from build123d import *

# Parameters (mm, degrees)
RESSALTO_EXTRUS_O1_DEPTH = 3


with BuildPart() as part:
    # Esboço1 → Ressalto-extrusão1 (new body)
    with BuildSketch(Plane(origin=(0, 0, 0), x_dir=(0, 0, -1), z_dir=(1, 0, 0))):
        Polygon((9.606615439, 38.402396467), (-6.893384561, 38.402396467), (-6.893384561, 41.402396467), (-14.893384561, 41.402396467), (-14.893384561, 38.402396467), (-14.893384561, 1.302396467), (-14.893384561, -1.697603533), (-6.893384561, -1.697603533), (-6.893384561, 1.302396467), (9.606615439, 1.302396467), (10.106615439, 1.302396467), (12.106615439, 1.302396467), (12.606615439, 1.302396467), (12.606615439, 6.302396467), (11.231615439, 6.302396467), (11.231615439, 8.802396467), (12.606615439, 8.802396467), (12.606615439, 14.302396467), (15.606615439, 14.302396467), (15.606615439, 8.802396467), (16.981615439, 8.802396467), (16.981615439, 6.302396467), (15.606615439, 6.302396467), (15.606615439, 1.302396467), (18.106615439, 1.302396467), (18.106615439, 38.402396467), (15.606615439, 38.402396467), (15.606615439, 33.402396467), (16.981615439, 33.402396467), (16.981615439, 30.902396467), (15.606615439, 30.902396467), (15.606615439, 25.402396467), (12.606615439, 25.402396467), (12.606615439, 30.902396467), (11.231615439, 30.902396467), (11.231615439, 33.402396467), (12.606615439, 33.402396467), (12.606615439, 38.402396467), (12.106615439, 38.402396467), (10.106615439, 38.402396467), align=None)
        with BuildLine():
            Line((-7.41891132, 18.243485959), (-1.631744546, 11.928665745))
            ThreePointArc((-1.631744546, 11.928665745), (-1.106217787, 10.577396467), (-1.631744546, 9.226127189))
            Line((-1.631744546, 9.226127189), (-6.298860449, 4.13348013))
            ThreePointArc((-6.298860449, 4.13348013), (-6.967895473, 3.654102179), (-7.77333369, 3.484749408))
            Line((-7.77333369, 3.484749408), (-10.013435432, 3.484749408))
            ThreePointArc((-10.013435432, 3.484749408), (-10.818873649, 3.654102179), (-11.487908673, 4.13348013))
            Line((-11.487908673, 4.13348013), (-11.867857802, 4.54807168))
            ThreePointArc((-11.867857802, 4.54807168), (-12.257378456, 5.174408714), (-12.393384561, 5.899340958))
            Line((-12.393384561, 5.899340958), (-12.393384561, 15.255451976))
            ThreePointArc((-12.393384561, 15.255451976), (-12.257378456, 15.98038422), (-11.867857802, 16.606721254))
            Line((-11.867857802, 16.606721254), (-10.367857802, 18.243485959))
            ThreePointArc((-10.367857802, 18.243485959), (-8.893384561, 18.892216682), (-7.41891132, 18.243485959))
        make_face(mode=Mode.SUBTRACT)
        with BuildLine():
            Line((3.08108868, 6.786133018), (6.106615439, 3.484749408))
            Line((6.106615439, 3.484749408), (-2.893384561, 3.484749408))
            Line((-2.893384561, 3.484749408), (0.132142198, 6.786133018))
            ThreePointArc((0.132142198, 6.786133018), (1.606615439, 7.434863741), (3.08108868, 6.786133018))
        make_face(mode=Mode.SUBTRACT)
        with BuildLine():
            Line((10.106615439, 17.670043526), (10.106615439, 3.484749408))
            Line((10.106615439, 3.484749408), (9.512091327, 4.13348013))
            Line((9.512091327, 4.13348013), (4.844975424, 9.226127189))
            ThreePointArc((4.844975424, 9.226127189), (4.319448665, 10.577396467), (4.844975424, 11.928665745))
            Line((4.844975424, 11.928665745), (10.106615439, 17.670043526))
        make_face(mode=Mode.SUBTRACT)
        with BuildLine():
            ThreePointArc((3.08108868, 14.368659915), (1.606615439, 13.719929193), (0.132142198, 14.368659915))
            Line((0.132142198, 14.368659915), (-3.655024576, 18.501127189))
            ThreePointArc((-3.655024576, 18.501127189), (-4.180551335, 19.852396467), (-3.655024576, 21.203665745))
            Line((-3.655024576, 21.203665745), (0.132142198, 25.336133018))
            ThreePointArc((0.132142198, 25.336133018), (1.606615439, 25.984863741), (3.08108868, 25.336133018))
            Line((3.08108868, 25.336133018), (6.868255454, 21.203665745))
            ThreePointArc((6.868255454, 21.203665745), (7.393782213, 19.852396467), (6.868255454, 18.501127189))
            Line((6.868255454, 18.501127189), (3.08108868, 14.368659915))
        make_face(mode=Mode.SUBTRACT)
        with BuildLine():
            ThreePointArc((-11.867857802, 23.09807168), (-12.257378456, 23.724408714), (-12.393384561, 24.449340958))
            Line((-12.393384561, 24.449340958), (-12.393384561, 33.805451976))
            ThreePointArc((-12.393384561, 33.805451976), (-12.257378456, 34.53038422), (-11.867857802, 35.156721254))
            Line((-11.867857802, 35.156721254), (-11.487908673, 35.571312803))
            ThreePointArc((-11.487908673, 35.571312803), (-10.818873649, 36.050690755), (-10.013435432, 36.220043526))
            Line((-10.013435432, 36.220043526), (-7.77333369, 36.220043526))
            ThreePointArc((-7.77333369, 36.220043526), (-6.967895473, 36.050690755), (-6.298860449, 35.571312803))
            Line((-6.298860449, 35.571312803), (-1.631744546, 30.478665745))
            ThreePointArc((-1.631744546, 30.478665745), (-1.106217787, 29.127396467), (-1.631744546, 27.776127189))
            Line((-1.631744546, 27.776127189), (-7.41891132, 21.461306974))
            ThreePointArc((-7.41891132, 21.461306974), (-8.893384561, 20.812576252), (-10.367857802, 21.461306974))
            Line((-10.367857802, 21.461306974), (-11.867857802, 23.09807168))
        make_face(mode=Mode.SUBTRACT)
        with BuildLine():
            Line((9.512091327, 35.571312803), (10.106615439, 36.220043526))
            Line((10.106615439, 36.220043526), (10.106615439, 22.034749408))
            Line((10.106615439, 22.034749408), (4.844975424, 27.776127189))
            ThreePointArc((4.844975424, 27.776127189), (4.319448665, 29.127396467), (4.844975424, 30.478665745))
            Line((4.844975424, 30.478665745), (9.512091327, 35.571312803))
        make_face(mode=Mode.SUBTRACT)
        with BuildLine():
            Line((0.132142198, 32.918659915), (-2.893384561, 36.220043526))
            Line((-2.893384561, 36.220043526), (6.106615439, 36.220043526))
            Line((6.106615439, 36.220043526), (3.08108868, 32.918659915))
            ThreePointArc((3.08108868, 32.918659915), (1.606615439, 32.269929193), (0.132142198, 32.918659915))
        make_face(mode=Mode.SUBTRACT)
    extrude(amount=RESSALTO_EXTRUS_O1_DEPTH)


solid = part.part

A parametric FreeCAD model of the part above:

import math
import FreeCAD as App
import Part
import Sketcher

V = App.Vector
Q = App.Units.Quantity


def add_polygon(sketch, points):
    """Adds a closed chain of lines whose ends are joined by coincident constraints."""
    first, n = sketch.GeometryCount, len(points)
    for a, b in zip(points, points[1:] + points[:1]):
        sketch.addGeometry(Part.LineSegment(App.Vector(*a, 0), App.Vector(*b, 0)), False)
    for i in range(n):
        sketch.addConstraint(Sketcher.Constraint("Coincident", first + i, 2, first + (i + 1) % n, 1))

doc = App.newDocument("Part")
params = doc.addObject("Spreadsheet::Sheet", "Params")
for row, (alias, value) in enumerate([
    ("sketch1_radius", "2 mm"),
    ("sketch1_width", "3 mm"),
    ("sketch1_width2", "5 mm"),
    ("sketch1_height", "8 mm"),
    ("sketch1_height2", "9 mm"),
    ("pad1_length", "3 mm"),
], start=1):
    params.set(f"A{row}", alias)
    params.set(f"B{row}", "=" + value)
    params.setAlias(f"B{row}", alias)

body = doc.addObject("PartDesign::Body", "Body")

sketch1 = body.newObject("Sketcher::SketchObject", "Sketch")
sketch1.AttachmentSupport = (doc.getObject("YZ_Plane"), [""])
sketch1.MapMode = "FlatFace"
add_polygon(sketch1, [(38.4, 6.9), (41.4, 6.9), (41.4, 14.9), (-1.7, 14.9), (-1.7, 6.9), (1.3, 6.9), (1.3, -12.6), (6.3, -12.6), (6.3, -11.2), (8.8, -11.2), (8.8, -12.6), (14.3, -12.6), (14.3, -15.6), (8.8, -15.6), (8.8, -17), (6.3, -17), (6.3, -15.6), (1.3, -15.6), (1.3, -18.1), (38.4, -18.1), (38.4, -15.6), (33.4, -15.6), (33.4, -17), (30.9, -17), (30.9, -15.6), (25.4, -15.6), (25.4, -12.6), (30.9, -12.6), (30.9, -11.2), (33.4, -11.2), (33.4, -12.6), (38.4, -12.6)])
sketch1.addGeometry(Part.ArcOfCircle(Part.Circle(V(16.9, 8.9, 0), V(0, 0, 1), 2), math.radians(-47), math.radians(47)), False)
sketch1.addGeometry(Part.LineSegment(V(18.2, 7.4, 0), V(11.9, 1.6, 0)), False)
sketch1.addGeometry(Part.ArcOfCircle(Part.Circle(V(10.6, 3.1, 0), V(0, 0, 1), 2), math.radians(-133), math.radians(-47)), False)
sketch1.addGeometry(Part.LineSegment(V(9.2, 1.6, 0), V(4.1, 6.3, 0)), False)
sketch1.addGeometry(Part.ArcOfCircle(Part.Circle(V(5.5, 7.8, 0), V(0, 0, 1), 2), math.radians(-180), math.radians(-133)), False)
sketch1.addGeometry(Part.LineSegment(V(3.5, 7.8, 0), V(3.5, 10, 0)), False)
sketch1.addGeometry(Part.ArcOfCircle(Part.Circle(V(5.5, 10, 0), V(0, 0, 1), 2), math.radians(133), math.radians(180)), False)
sketch1.addGeometry(Part.LineSegment(V(4.1, 11.5, 0), V(4.5, 11.9, 0)), False)
sketch1.addGeometry(Part.ArcOfCircle(Part.Circle(V(5.9, 10.4, 0), V(0, 0, 1), 2), math.radians(90), math.radians(133)), False)
sketch1.addGeometry(Part.LineSegment(V(5.9, 12.4, 0), V(15.3, 12.4, 0)), False)
sketch1.addGeometry(Part.ArcOfCircle(Part.Circle(V(15.3, 10.4, 0), V(0, 0, 1), 2), math.radians(47), math.radians(90)), False)
sketch1.addGeometry(Part.LineSegment(V(16.6, 11.9, 0), V(18.2, 10.4, 0)), False)
sketch1.addGeometry(Part.ArcOfCircle(Part.Circle(V(5.4, -1.6, 0), V(0, 0, 1), 2), math.radians(-47), math.radians(47)), False)
sketch1.addGeometry(Part.LineSegment(V(6.8, -3.1, 0), V(3.5, -6.1, 0)), False)
sketch1.addGeometry(Part.LineSegment(V(3.5, -6.1, 0), V(3.5, 2.9, 0)), False)
sketch1.addGeometry(Part.LineSegment(V(3.5, 2.9, 0), V(6.8, -0.1, 0)), False)
sketch1.addGeometry(Part.LineSegment(V(11.9, -4.8, 0), V(17.7, -10.1, 0)), False)
sketch1.addGeometry(Part.LineSegment(V(17.7, -10.1, 0), V(3.5, -10.1, 0)), False)
sketch1.addGeometry(Part.LineSegment(V(3.5, -10.1, 0), V(4.1, -9.5, 0)), False)
sketch1.addGeometry(Part.LineSegment(V(4.1, -9.5, 0), V(9.2, -4.8, 0)), False)
sketch1.addGeometry(Part.ArcOfCircle(Part.Circle(V(10.6, -6.3, 0), V(0, 0, 1), 2), math.radians(47), math.radians(133)), False)
sketch1.addGeometry(Part.LineSegment(V(21.5, 10.4, 0), V(23.1, 11.9, 0)), False)
sketch1.addGeometry(Part.ArcOfCircle(Part.Circle(V(24.4, 10.4, 0), V(0, 0, 1), 2), math.radians(90), math.radians(133)), False)
sketch1.addGeometry(Part.LineSegment(V(24.4, 12.4, 0), V(33.8, 12.4, 0)), False)
sketch1.addGeometry(Part.ArcOfCircle(Part.Circle(V(33.8, 10.4, 0), V(0, 0, 1), 2), math.radians(47), math.radians(90)), False)
sketch1.addGeometry(Part.LineSegment(V(35.2, 11.9, 0), V(35.6, 11.5, 0)), False)
sketch1.addGeometry(Part.ArcOfCircle(Part.Circle(V(34.2, 10, 0), V(0, 0, 1), 2), math.radians(0), math.radians(47)), False)
sketch1.addGeometry(Part.LineSegment(V(36.2, 10, 0), V(36.2, 7.8, 0)), False)
sketch1.addGeometry(Part.ArcOfCircle(Part.Circle(V(34.2, 7.8, 0), V(0, 0, 1), 2), math.radians(-47), math.radians(0)), False)
sketch1.addGeometry(Part.LineSegment(V(35.6, 6.3, 0), V(30.5, 1.6, 0)), False)
sketch1.addGeometry(Part.ArcOfCircle(Part.Circle(V(29.1, 3.1, 0), V(0, 0, 1), 2), math.radians(-133), math.radians(-47)), False)
sketch1.addGeometry(Part.LineSegment(V(27.8, 1.6, 0), V(21.5, 7.4, 0)), False)
sketch1.addGeometry(Part.ArcOfCircle(Part.Circle(V(22.8, 8.9, 0), V(0, 0, 1), 2), math.radians(133), math.radians(227)), False)
sketch1.addGeometry(Part.LineSegment(V(18.5, -6.9, 0), V(14.4, -3.1, 0)), False)
sketch1.addGeometry(Part.ArcOfCircle(Part.Circle(V(15.7, -1.6, 0), V(0, 0, 1), 2), math.radians(133), math.radians(227)), False)
sketch1.addGeometry(Part.LineSegment(V(14.4, -0.1, 0), V(18.5, 3.7, 0)), False)
sketch1.addGeometry(Part.ArcOfCircle(Part.Circle(V(19.9, 2.2, 0), V(0, 0, 1), 2), math.radians(47), math.radians(133)), False)
sketch1.addGeometry(Part.LineSegment(V(21.2, 3.7, 0), V(25.3, -0.1, 0)), False)
sketch1.addGeometry(Part.ArcOfCircle(Part.Circle(V(24, -1.6, 0), V(0, 0, 1), 2), math.radians(-47), math.radians(47)), False)
sketch1.addGeometry(Part.LineSegment(V(25.3, -3.1, 0), V(21.2, -6.9, 0)), False)
sketch1.addGeometry(Part.ArcOfCircle(Part.Circle(V(19.9, -5.4, 0), V(0, 0, 1), 2), math.radians(-133), math.radians(-47)), False)
sketch1.addGeometry(Part.ArcOfCircle(Part.Circle(V(34.3, -1.6, 0), V(0, 0, 1), 2), math.radians(133), math.radians(227)), False)
sketch1.addGeometry(Part.LineSegment(V(32.9, -0.1, 0), V(36.2, 2.9, 0)), False)
sketch1.addGeometry(Part.LineSegment(V(36.2, 2.9, 0), V(36.2, -6.1, 0)), False)
sketch1.addGeometry(Part.LineSegment(V(36.2, -6.1, 0), V(32.9, -3.1, 0)), False)
sketch1.addGeometry(Part.LineSegment(V(30.5, -4.8, 0), V(35.6, -9.5, 0)), False)
sketch1.addGeometry(Part.LineSegment(V(35.6, -9.5, 0), V(36.2, -10.1, 0)), False)
sketch1.addGeometry(Part.LineSegment(V(36.2, -10.1, 0), V(22, -10.1, 0)), False)
sketch1.addGeometry(Part.LineSegment(V(22, -10.1, 0), V(27.8, -4.8, 0)), False)
sketch1.addGeometry(Part.ArcOfCircle(Part.Circle(V(29.1, -6.3, 0), V(0, 0, 1), 2), math.radians(47), math.radians(133)), False)
sketch1.addConstraint([
    Sketcher.Constraint("Tangent", 32, 1, 33, 1),
    Sketcher.Constraint("Tangent", 33, 2, 34, 2),
    Sketcher.Constraint("Tangent", 34, 1, 35, 1),
    Sketcher.Constraint("Tangent", 35, 2, 36, 2),
    Sketcher.Constraint("Tangent", 36, 1, 37, 1),
    Sketcher.Constraint("Tangent", 37, 2, 38, 2),
    Sketcher.Constraint("Tangent", 38, 1, 39, 1),
    Sketcher.Constraint("Tangent", 39, 2, 40, 2),
    Sketcher.Constraint("Tangent", 40, 1, 41, 1),
    Sketcher.Constraint("Tangent", 41, 2, 42, 2),
    Sketcher.Constraint("Tangent", 42, 1, 43, 1),
    Sketcher.Constraint("Tangent", 43, 2, 32, 2),
    Sketcher.Constraint("Tangent", 44, 1, 45, 1),
    Sketcher.Constraint("Coincident", 45, 2, 46, 1),
    Sketcher.Constraint("Coincident", 46, 2, 47, 1),
    Sketcher.Constraint("Tangent", 47, 2, 44, 2),
    Sketcher.Constraint("Coincident", 48, 2, 49, 1),
    Sketcher.Constraint("Coincident", 49, 2, 50, 1),
    Sketcher.Constraint("Coincident", 50, 2, 51, 1),
    Sketcher.Constraint("Tangent", 51, 2, 52, 2),
    Sketcher.Constraint("Tangent", 52, 1, 48, 1),
    Sketcher.Constraint("Tangent", 53, 2, 54, 2),
    Sketcher.Constraint("Tangent", 54, 1, 55, 1),
    Sketcher.Constraint("Tangent", 55, 2, 56, 2),
    Sketcher.Constraint("Tangent", 56, 1, 57, 1),
    Sketcher.Constraint("Tangent", 57, 2, 58, 2),
    Sketcher.Constraint("Tangent", 58, 1, 59, 1),
    Sketcher.Constraint("Tangent", 59, 2, 60, 2),
    Sketcher.Constraint("Tangent", 60, 1, 61, 1),
    Sketcher.Constraint("Tangent", 61, 2, 62, 2),
    Sketcher.Constraint("Tangent", 62, 1, 63, 1),
    Sketcher.Constraint("Tangent", 63, 2, 64, 2),
    Sketcher.Constraint("Tangent", 64, 1, 53, 1),
    Sketcher.Constraint("Tangent", 65, 2, 66, 2),
    Sketcher.Constraint("Tangent", 66, 1, 67, 1),
    Sketcher.Constraint("Tangent", 67, 2, 68, 2),
    Sketcher.Constraint("Tangent", 68, 1, 69, 1),
    Sketcher.Constraint("Tangent", 69, 2, 70, 2),
    Sketcher.Constraint("Tangent", 70, 1, 71, 1),
    Sketcher.Constraint("Tangent", 71, 2, 72, 2),
    Sketcher.Constraint("Tangent", 72, 1, 65, 1),
    Sketcher.Constraint("Tangent", 73, 1, 74, 1),
    Sketcher.Constraint("Coincident", 74, 2, 75, 1),
    Sketcher.Constraint("Coincident", 75, 2, 76, 1),
    Sketcher.Constraint("Tangent", 76, 2, 73, 2),
    Sketcher.Constraint("Coincident", 77, 2, 78, 1),
    Sketcher.Constraint("Coincident", 78, 2, 79, 1),
    Sketcher.Constraint("Coincident", 79, 2, 80, 1),
    Sketcher.Constraint("Tangent", 80, 2, 81, 2),
    Sketcher.Constraint("Tangent", 81, 1, 77, 1),
    Sketcher.Constraint("Horizontal", 0),
    Sketcher.Constraint("Vertical", 1),
    Sketcher.Constraint("Horizontal", 2),
    Sketcher.Constraint("Vertical", 3),
    Sketcher.Constraint("Horizontal", 4),
    Sketcher.Constraint("Vertical", 5),
    Sketcher.Constraint("Horizontal", 6),
    Sketcher.Constraint("Vertical", 7),
    Sketcher.Constraint("Horizontal", 8),
    Sketcher.Constraint("Vertical", 9),
    Sketcher.Constraint("Horizontal", 10),
    Sketcher.Constraint("Vertical", 11),
    Sketcher.Constraint("Horizontal", 12),
    Sketcher.Constraint("Vertical", 13),
    Sketcher.Constraint("Horizontal", 14),
    Sketcher.Constraint("Vertical", 15),
    Sketcher.Constraint("Horizontal", 16),
    Sketcher.Constraint("Vertical", 17),
    Sketcher.Constraint("Horizontal", 18),
    Sketcher.Constraint("Vertical", 19),
    Sketcher.Constraint("Horizontal", 20),
    Sketcher.Constraint("Vertical", 21),
    Sketcher.Constraint("Horizontal", 22),
    Sketcher.Constraint("Vertical", 23),
    Sketcher.Constraint("Horizontal", 24),
    Sketcher.Constraint("Vertical", 25),
    Sketcher.Constraint("Horizontal", 26),
    Sketcher.Constraint("Vertical", 27),
    Sketcher.Constraint("Horizontal", 28),
    Sketcher.Constraint("Vertical", 29),
    Sketcher.Constraint("Horizontal", 30),
    Sketcher.Constraint("Vertical", 31),
    Sketcher.Constraint("Vertical", 37),
    Sketcher.Constraint("Horizontal", 41),
    Sketcher.Constraint("Vertical", 46),
    Sketcher.Constraint("Horizontal", 49),
    Sketcher.Constraint("Horizontal", 55),
    Sketcher.Constraint("Vertical", 59),
    Sketcher.Constraint("Vertical", 75),
    Sketcher.Constraint("Horizontal", 79),
    Sketcher.Constraint("Equal", 32, 34),
    Sketcher.Constraint("Equal", 34, 36),
    Sketcher.Constraint("Equal", 36, 38),
    Sketcher.Constraint("Equal", 38, 40),
    Sketcher.Constraint("Equal", 40, 42),
    Sketcher.Constraint("Equal", 42, 44),
    Sketcher.Constraint("Equal", 44, 52),
    Sketcher.Constraint("Equal", 52, 54),
    Sketcher.Constraint("Equal", 54, 56),
    Sketcher.Constraint("Equal", 56, 58),
    Sketcher.Constraint("Equal", 58, 60),
    Sketcher.Constraint("Equal", 60, 62),
    Sketcher.Constraint("Equal", 62, 64),
    Sketcher.Constraint("Equal", 64, 66),
    Sketcher.Constraint("Equal", 66, 68),
    Sketcher.Constraint("Equal", 68, 70),
    Sketcher.Constraint("Equal", 70, 72),
    Sketcher.Constraint("Equal", 72, 73),
    Sketcher.Constraint("Equal", 73, 81),
    Sketcher.Constraint("Parallel", 33, 39),
    Sketcher.Constraint("Parallel", 35, 43),
    Sketcher.Constraint("Parallel", 39, 45),
    Sketcher.Constraint("Parallel", 43, 47),
    Sketcher.Constraint("Parallel", 47, 48),
    Sketcher.Constraint("Parallel", 45, 50),
    Sketcher.Constraint("Parallel", 50, 51),
    Sketcher.Constraint("Parallel", 51, 53),
    Sketcher.Constraint("Parallel", 48, 57),
    Sketcher.Constraint("Parallel", 53, 61),
    Sketcher.Constraint("Parallel", 57, 63),
    Sketcher.Constraint("Parallel", 63, 65),
    Sketcher.Constraint("Parallel", 61, 67),
    Sketcher.Constraint("Parallel", 65, 69),
    Sketcher.Constraint("Parallel", 67, 71),
    Sketcher.Constraint("Parallel", 71, 74),
    Sketcher.Constraint("Parallel", 69, 76),
    Sketcher.Constraint("Parallel", 76, 77),
    Sketcher.Constraint("Parallel", 77, 78),
    Sketcher.Constraint("Parallel", 74, 80),
    Sketcher.Constraint("Horizontal", 42, 3, 54, 3),
    Sketcher.Constraint("Horizontal", 38, 3, 58, 3),
    Sketcher.Constraint("Horizontal", 36, 3, 60, 3),
    Sketcher.Constraint("Horizontal", 34, 3, 62, 3),
    Sketcher.Constraint("Horizontal", 32, 3, 64, 3),
    Sketcher.Constraint("Horizontal", 44, 3, 66, 3),
    Sketcher.Constraint("Horizontal", 66, 3, 70, 3),
    Sketcher.Constraint("Horizontal", 70, 3, 73, 3),
    Sketcher.Constraint("Horizontal", 52, 3, 81, 3),
    Sketcher.Constraint("Horizontal", 0, 2, 3, 2),
    Sketcher.Constraint("Horizontal", 6, 2, 9, 2),
    Sketcher.Constraint("Horizontal", 12, 2, 15, 2),
    Sketcher.Constraint("Horizontal", 16, 2, 19, 2),
    Sketcher.Constraint("Horizontal", 14, 2, 21, 2),
    Sketcher.Constraint("Horizontal", 20, 2, 23, 2),
    Sketcher.Constraint("Horizontal", 10, 2, 25, 2),
    Sketcher.Constraint("Horizontal", 8, 2, 27, 2),
    Sketcher.Constraint("Horizontal", 26, 2, 29, 2),
    Sketcher.Constraint("Horizontal", 33, 2, 34, 1),
    Sketcher.Constraint("Horizontal", 46, 2, 74, 2),
    Sketcher.Constraint("Horizontal", 50, 2, 77, 2),
    Sketcher.Constraint("Horizontal", 49, 2, 78, 2),
    Sketcher.Constraint("Vertical", 34, 3, 52, 3),
    Sketcher.Constraint("Vertical", 62, 3, 81, 3),
    Sketcher.Constraint("Vertical", 9, 2, 12, 2),
    Sketcher.Constraint("Vertical", 7, 2, 14, 2),
    Sketcher.Constraint("Vertical", 5, 2, 16, 2),
    Sketcher.Constraint("Vertical", 23, 2, 26, 2),
    Sketcher.Constraint("Vertical", 21, 2, 28, 2),
    Sketcher.Constraint("Vertical", 19, 2, 30, 2),
    Sketcher.Constraint("Vertical", 37, 2, 45, 2),
    Sketcher.Constraint("Vertical", 46, 2, 49, 2),
    Sketcher.Constraint("Vertical", 38, 1, 50, 2),
    Sketcher.Constraint("Vertical", 59, 2, 74, 2),
    Sketcher.Constraint("Equal", 0, 4),
    Sketcher.Constraint("Equal", 16, 20),
    Sketcher.Constraint("Equal", 14, 22),
    Sketcher.Constraint("Equal", 12, 24),
    Sketcher.Constraint("Equal", 4, 11),
    Sketcher.Constraint("Equal", 9, 13),
    Sketcher.Constraint("Equal", 28, 17),
    Sketcher.Constraint("Radius", 32, Q("2 mm")),
    Sketcher.Constraint("DistanceX", 0, 1, 0, 2, Q("3 mm")),
    Sketcher.Constraint("DistanceX", 6, 1, 6, 2, Q("5 mm")),
    Sketcher.Constraint("DistanceY", 1, 1, 1, 2, Q("8 mm")),
    Sketcher.Constraint("DistanceY", 46, 1, 46, 2, Q("9 mm")),
    Sketcher.Constraint("DistanceX", 2, 2, 2, 1, Q("43.1 mm")),
    Sketcher.Constraint("DistanceX", 8, 1, 8, 2, Q("2.5 mm")),
    Sketcher.Constraint("DistanceX", 10, 1, 10, 2, Q("5.5 mm")),
    Sketcher.Constraint("DistanceY", 5, 2, 5, 1, Q("19.5 mm")),
    Sketcher.Constraint("DistanceY", 7, 1, 7, 2, Q("1.375 mm")),
    Sketcher.Constraint("DistanceY", 37, 1, 37, 2, Q("2.240102 mm")),
    Sketcher.Constraint("Distance", 48, Q("7.7877 mm")),
    Sketcher.Constraint("DistanceX", 41, 1, 41, 2, Q("9.356111 mm")),
    Sketcher.Constraint("Distance", 35, Q("6.907751 mm")),
    Sketcher.Constraint("Distance", 39, Q("0.562359 mm")),
    Sketcher.Constraint("DistanceX", -1, 1, 36, 3, Q("5.484749 mm")),
    Sketcher.Constraint("DistanceY", 52, 3, -1, 1, Q("6.319449 mm")),
    Sketcher.Constraint("DistanceX", -1, 1, 54, 3, Q("24.449341 mm")),
    Sketcher.Constraint("DistanceX", -1, 1, 66, 3, Q("15.719929 mm")),
    Sketcher.Constraint("DistanceY", -1, 1, 68, 3, Q("2.180551 mm")),
    Sketcher.Constraint("DistanceY", -1, 1, 32, 1, Q("7.418911 mm")),
    Sketcher.Constraint("DistanceY", 44, 1, -1, 1, Q("3.081089 mm")),
    Sketcher.Constraint("DistanceX", -1, 1, 0, 2, Q("41.402396 mm")),
    Sketcher.Constraint("DistanceY", -1, 1, 0, 2, Q("6.893385 mm")),
])
sketch1.setExpression("Constraints[202]", "Params.sketch1_radius")
sketch1.setExpression("Constraints[203]", "Params.sketch1_width")
sketch1.setExpression("Constraints[204]", "Params.sketch1_width2")
sketch1.setExpression("Constraints[205]", "Params.sketch1_height")
sketch1.setExpression("Constraints[206]", "Params.sketch1_height2")
pad1 = body.newObject("PartDesign::Pad", "Pad")
pad1.Profile = sketch1
pad1.setExpression("Length", "Params.pad1_length")

doc.recompute()
